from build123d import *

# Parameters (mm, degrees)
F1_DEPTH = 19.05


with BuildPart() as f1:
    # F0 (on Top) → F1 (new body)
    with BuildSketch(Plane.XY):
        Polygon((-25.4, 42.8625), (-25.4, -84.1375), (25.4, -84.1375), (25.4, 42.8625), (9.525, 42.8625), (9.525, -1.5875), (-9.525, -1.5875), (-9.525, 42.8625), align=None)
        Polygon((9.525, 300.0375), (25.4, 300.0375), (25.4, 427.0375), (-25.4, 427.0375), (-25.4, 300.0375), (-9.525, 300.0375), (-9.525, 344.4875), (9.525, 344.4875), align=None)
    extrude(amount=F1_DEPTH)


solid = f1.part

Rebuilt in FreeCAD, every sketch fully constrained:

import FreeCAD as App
import Part
import Sketcher

V = App.Vector
Q = App.Units.Quantity


def add_polygon(sketch, points):
    """Adds a closed chain of lines whose ends are joined by coincident constraints."""
    first, n = sketch.GeometryCount, len(points)
    for a, b in zip(points, points[1:] + points[:1]):
        sketch.addGeometry(Part.LineSegment(App.Vector(*a, 0), App.Vector(*b, 0)), False)
    for i in range(n):
        sketch.addConstraint(Sketcher.Constraint("Coincident", first + i, 2, first + (i + 1) % n, 1))

doc = App.newDocument("Part")
params = doc.addObject("Spreadsheet::Sheet", "Params")
for row, (alias, value) in enumerate([
    ("sketch1_width", "2 in"),
    ("sketch1_height", "5 in"),
    ("sketch1_width2", "0.75 in"),
    ("sketch1_height2", "1.75 in"),
    ("pad1_length", "0.75 in"),
], start=1):
    params.set(f"A{row}", alias)
    params.set(f"B{row}", "=" + value)
    params.setAlias(f"B{row}", alias)

body = doc.addObject("PartDesign::Body", "Body")
body.AllowCompound = True

sketch1 = doc.addObject("Sketcher::SketchObject", "Sketch")
body.addObject(sketch1)
sketch1.AttachmentSupport = (doc.XY_Plane, [""])
sketch1.MapMode = "FlatFace"
add_polygon(sketch1, [(-25.4, 42.8625), (-25.4, -84.1375), (25.4, -84.1375), (25.4, 42.8625), (9.525, 42.8625), (9.525, -1.5875), (-9.525, -1.5875), (-9.525, 42.8625)])
add_polygon(sketch1, [(9.525, 300.0375), (25.4, 300.0375), (25.4, 427.0375), (-25.4, 427.0375), (-25.4, 300.0375), (-9.525, 300.0375), (-9.525, 344.4875), (9.525, 344.4875)])
sketch1.addConstraint([
    Sketcher.Constraint("Vertical", 0),
    Sketcher.Constraint("Horizontal", 1),
    Sketcher.Constraint("Vertical", 2),
    Sketcher.Constraint("Horizontal", 3),
    Sketcher.Constraint("Vertical", 4),
    Sketcher.Constraint("Horizontal", 5),
    Sketcher.Constraint("Vertical", 6),
    Sketcher.Constraint("Horizontal", 7),
    Sketcher.Constraint("Horizontal", 8),
    Sketcher.Constraint("Vertical", 9),
    Sketcher.Constraint("Horizontal", 10),
    Sketcher.Constraint("Vertical", 11),
    Sketcher.Constraint("Horizontal", 12),
    Sketcher.Constraint("Vertical", 13),
    Sketcher.Constraint("Horizontal", 14),
    Sketcher.Constraint("Vertical", 15),
    Sketcher.Constraint("Symmetric", 3, 2, 6, 2, -2),
    Sketcher.Constraint("Symmetric", 8, 2, 11, 2, -2),
    Sketcher.Constraint("Vertical", 2, 2, 8, 2),
    Sketcher.Constraint("Vertical", 7, 2, 10, 2),
    Sketcher.Constraint("Vertical", 6, 2, 12, 2),
    Sketcher.Constraint("Vertical", 4, 2, 14, 2),
    Sketcher.Constraint("Equal", 2, 9),
    Sketcher.Constraint("Equal", 6, 13),
    Sketcher.Constraint("DistanceX", 1, 1, 1, 2, Q("2 in")),
    Sketcher.Constraint("DistanceY", 0, 2, 0, 1, Q("5 in")),
    Sketcher.Constraint("DistanceX", 5, 2, 5, 1, Q("0.75 in")),
    Sketcher.Constraint("DistanceY", 4, 2, 4, 1, Q("1.75 in")),
    Sketcher.Constraint("DistanceY", 0, 2, -1, 1, Q("3.3125 in")),
    Sketcher.Constraint("DistanceY", -1, 1, 8, 2, Q("11.8125 in")),
])
sketch1.setExpression("Constraints[40]", "Params.sketch1_width")
sketch1.setExpression("Constraints[41]", "Params.sketch1_height")
sketch1.setExpression("Constraints[42]", "Params.sketch1_width2")
sketch1.setExpression("Constraints[43]", "Params.sketch1_height2")
pad1 = doc.addObject("PartDesign::Pad", "Pad")
body.addObject(pad1)
pad1.Profile = sketch1
pad1.setExpression("Length", "Params.pad1_length")

doc.recompute()
